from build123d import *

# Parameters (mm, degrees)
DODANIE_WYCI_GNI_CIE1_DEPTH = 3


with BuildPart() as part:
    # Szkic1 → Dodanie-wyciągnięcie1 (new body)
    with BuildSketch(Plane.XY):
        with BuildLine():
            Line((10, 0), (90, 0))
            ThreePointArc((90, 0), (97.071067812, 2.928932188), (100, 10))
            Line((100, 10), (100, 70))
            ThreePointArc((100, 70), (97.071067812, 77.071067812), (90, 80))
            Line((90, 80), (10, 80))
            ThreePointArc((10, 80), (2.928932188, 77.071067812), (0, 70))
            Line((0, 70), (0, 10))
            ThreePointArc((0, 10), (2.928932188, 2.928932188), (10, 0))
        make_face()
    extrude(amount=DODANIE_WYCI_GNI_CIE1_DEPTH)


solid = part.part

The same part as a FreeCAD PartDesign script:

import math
import FreeCAD as App
import Part
import Sketcher

V = App.Vector
Q = App.Units.Quantity

doc = App.newDocument("Part")
body = doc.addObject("PartDesign::Body", "Body")

# Sketch on XY plane
sketch1 = body.newObject("Sketcher::SketchObject", "Sketch")
sketch1.AttachmentSupport = (doc.getObject("XY_Plane"), [""])
sketch1.MapMode = "FlatFace"
sketch1.addGeometry([
    Part.LineSegment(V(10, 0, 0), V(90, 0, 0)),  # 0
    Part.ArcOfCircle(Part.Circle(V(90, 10, 0), V(0, 0, 1), 10), math.radians(-90), math.radians(0)),  # 1
    Part.LineSegment(V(100, 10, 0), V(100, 70, 0)),  # 2
    Part.ArcOfCircle(Part.Circle(V(90, 70, 0), V(0, 0, 1), 10), math.radians(0), math.radians(90)),  # 3
    Part.LineSegment(V(90, 80, 0), V(10, 80, 0)),  # 4
    Part.ArcOfCircle(Part.Circle(V(10, 70, 0), V(0, 0, 1), 10), math.radians(90), math.radians(180)),  # 5
    Part.LineSegment(V(0, 70, 0), V(0, 10, 0)),  # 6
    Part.ArcOfCircle(Part.Circle(V(10, 10, 0), V(0, 0, 1), 10), math.radians(180), math.radians(270)),  # 7
], False)
sketch1.addConstraint([
    Sketcher.Constraint("Tangent", 0, 2, 1, 1),
    Sketcher.Constraint("Tangent", 1, 2, 2, 1),
    Sketcher.Constraint("Tangent", 2, 2, 3, 1),
    Sketcher.Constraint("Tangent", 3, 2, 4, 1),
    Sketcher.Constraint("Tangent", 4, 2, 5, 1),
    Sketcher.Constraint("Tangent", 5, 2, 6, 1),
    Sketcher.Constraint("Tangent", 6, 2, 7, 1),
    Sketcher.Constraint("Tangent", 7, 2, 0, 1),
    Sketcher.Constraint("Horizontal", 0),
    Sketcher.Constraint("Vertical", 2),
    Sketcher.Constraint("Horizontal", 4),
    Sketcher.Constraint("Vertical", 6),
    Sketcher.Constraint("Equal", 1, 3),
    Sketcher.Constraint("Equal", 3, 5),
    Sketcher.Constraint("Equal", 5, 7),
    Sketcher.Constraint("PointOnObject", 0, 2, -1),
    Sketcher.Constraint("PointOnObject", 5, 2, -2),
    Sketcher.Constraint("Radius", 1, Q("10 mm")),
    Sketcher.Constraint("DistanceX", 0, 1, 0, 2, Q("80 mm")),
    Sketcher.Constraint("DistanceY", 2, 1, 2, 2, Q("60 mm")),
])
pad1 = body.newObject("PartDesign::Pad", "Pad")
pad1.Profile = sketch1
pad1.Length = 3

doc.recompute()
